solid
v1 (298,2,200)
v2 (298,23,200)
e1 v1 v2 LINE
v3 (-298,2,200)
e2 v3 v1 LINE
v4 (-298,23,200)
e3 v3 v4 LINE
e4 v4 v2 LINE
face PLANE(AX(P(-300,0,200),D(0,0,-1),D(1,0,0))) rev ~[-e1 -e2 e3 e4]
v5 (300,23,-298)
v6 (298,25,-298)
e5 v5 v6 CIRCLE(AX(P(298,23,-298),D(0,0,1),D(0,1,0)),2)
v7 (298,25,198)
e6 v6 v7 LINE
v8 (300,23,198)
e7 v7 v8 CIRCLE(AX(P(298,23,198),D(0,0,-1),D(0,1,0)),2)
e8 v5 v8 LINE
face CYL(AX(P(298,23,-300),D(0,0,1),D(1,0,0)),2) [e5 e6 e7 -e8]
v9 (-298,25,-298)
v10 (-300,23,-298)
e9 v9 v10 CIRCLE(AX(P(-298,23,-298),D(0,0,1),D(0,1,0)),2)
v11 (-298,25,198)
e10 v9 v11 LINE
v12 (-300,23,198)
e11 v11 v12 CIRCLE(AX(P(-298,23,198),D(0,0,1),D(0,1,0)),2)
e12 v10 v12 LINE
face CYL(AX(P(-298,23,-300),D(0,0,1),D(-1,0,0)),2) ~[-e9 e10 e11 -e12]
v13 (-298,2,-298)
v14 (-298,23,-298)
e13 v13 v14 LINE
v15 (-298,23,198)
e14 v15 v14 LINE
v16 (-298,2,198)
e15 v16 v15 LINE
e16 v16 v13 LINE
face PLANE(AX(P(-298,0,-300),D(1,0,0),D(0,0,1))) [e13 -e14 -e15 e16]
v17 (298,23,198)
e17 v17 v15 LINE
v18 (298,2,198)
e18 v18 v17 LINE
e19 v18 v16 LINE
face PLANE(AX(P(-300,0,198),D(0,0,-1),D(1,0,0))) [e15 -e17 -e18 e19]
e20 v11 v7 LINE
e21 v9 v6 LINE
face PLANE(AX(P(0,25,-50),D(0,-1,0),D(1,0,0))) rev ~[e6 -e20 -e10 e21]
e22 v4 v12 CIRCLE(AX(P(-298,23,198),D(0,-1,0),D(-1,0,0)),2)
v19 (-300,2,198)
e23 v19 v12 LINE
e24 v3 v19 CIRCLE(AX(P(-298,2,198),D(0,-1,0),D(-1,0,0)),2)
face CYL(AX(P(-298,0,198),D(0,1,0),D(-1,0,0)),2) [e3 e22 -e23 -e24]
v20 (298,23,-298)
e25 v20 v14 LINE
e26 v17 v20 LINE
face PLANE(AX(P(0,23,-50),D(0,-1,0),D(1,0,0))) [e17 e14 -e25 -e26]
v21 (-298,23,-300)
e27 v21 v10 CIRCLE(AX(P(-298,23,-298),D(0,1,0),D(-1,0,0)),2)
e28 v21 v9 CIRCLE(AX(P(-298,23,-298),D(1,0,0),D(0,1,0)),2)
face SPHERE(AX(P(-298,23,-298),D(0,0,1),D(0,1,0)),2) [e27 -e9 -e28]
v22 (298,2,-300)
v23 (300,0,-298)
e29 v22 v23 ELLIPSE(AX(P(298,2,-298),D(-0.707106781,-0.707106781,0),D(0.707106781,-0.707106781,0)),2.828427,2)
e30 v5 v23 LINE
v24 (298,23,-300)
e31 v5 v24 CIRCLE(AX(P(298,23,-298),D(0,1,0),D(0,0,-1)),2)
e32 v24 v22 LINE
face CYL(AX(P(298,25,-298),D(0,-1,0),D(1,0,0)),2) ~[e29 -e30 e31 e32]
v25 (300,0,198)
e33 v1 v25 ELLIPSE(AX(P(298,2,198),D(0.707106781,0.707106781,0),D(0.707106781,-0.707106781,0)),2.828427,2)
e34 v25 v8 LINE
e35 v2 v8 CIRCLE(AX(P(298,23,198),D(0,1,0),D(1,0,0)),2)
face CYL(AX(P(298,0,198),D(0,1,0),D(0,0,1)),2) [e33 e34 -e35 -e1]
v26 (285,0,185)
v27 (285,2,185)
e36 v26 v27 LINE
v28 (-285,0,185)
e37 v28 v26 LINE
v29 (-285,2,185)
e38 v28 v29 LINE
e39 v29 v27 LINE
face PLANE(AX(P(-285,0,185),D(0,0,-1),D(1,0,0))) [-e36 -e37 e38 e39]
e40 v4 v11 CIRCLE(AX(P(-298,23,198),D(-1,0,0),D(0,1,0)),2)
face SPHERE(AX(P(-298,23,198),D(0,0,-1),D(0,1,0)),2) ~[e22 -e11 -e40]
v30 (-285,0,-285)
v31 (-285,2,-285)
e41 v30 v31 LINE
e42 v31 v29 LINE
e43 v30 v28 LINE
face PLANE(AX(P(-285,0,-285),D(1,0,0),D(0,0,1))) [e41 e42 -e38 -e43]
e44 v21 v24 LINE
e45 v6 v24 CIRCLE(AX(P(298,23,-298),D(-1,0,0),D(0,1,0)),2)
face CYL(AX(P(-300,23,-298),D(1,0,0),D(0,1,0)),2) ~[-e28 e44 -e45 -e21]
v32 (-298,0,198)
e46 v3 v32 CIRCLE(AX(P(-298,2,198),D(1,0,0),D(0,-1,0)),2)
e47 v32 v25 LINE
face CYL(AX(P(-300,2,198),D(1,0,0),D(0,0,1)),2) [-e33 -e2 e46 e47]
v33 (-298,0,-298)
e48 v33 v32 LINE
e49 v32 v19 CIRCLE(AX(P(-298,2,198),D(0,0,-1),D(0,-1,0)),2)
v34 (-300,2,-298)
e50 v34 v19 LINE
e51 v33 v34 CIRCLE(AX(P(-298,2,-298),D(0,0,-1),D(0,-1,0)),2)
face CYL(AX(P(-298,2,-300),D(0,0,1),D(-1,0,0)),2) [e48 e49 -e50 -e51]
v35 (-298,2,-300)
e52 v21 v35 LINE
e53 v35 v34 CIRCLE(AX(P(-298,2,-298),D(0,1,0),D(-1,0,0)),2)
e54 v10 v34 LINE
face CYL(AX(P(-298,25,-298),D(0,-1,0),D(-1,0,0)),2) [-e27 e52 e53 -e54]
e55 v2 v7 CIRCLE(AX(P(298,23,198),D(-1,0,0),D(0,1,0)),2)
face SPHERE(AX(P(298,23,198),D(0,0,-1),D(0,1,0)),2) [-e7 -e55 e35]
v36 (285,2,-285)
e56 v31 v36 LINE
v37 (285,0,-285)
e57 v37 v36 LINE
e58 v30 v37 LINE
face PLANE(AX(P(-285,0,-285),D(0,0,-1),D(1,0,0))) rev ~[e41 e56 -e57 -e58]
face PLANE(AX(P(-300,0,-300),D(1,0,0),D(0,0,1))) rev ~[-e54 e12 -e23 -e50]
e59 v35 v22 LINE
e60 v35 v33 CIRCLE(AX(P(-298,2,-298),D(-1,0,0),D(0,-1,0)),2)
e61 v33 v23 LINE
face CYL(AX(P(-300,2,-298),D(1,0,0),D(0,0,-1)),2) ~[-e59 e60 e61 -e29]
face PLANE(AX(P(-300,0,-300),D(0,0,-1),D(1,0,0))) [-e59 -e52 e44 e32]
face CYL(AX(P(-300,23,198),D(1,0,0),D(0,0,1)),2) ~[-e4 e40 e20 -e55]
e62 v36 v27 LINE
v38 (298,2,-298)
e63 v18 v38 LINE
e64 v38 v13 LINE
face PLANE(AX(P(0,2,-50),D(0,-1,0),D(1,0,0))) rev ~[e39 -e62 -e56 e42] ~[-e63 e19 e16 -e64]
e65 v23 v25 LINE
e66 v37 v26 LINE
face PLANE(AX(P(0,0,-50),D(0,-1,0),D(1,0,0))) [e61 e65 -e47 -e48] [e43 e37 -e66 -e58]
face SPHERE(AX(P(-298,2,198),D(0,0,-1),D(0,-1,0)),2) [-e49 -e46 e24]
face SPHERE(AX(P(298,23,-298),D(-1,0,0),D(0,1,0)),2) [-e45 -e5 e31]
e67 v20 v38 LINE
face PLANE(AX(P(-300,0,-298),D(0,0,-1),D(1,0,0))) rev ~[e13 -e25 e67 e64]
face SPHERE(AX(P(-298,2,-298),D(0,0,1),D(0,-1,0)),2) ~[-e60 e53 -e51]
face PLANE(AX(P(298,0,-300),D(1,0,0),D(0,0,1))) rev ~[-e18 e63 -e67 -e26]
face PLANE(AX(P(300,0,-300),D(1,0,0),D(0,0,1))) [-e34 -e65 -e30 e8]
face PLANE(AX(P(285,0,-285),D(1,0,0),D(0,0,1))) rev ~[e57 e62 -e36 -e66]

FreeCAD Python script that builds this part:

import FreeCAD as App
import Part
import Sketcher


def edges_at(feature, points):
    """Names of the edges that pass closest to the given points."""
    edges = feature.Shape.Edges
    near = lambda p: min(range(len(edges)), key=lambda i: edges[i].distToShape(Part.Vertex(*p))[0])
    return sorted({f"Edge{near(p) + 1}" for p in points})


def faces_at(feature, points):
    """Names of the faces that lie closest to the given points."""
    faces = feature.Shape.Faces
    near = lambda p: min(range(len(faces)), key=lambda i: faces[i].distToShape(Part.Vertex(*p))[0])
    return sorted({f"Face{near(p) + 1}" for p in points})

doc = App.newDocument("Part")
body = doc.addObject("PartDesign::Body", "Body")

# Sketch on XZ plane
sketch1 = doc.addObject("Sketcher::SketchObject", "Sketch")
body.addObject(sketch1)
sketch1.AttachmentSupport = (doc.XZ_Plane, [""])
sketch1.MapMode = "FlatFace"
sketch1.addGeometry([
    Part.LineSegment(App.Vector(-300, 200, 0), App.Vector(-300, -300, 0)),
    Part.LineSegment(App.Vector(-300, -300, 0), App.Vector(300, -300, 0)),
    Part.LineSegment(App.Vector(300, -300, 0), App.Vector(300, 200, 0)),
    Part.LineSegment(App.Vector(300, 200, 0), App.Vector(-300, 200, 0)),
], False)
sketch1.addConstraint([
    Sketcher.Constraint("Coincident", 0, 2, 1, 1),
    Sketcher.Constraint("Coincident", 1, 2, 2, 1),
    Sketcher.Constraint("Coincident", 2, 2, 3, 1),
    Sketcher.Constraint("Coincident", 3, 2, 0, 1),
    Sketcher.Constraint("Vertical", 0),
    Sketcher.Constraint("Horizontal", 1),
    Sketcher.Constraint("Vertical", 2),
    Sketcher.Constraint("Horizontal", 3),
    Sketcher.Constraint("DistanceX", 1, 1, 1, 2, 600.0),
    Sketcher.Constraint("DistanceY", 0, 2, 0, 1, 500.0),
    Sketcher.Constraint("DistanceX", 0, 2, -1, 1, 300.0),
    Sketcher.Constraint("DistanceY", 0, 2, -1, 1, 300.0),
])
pad1 = doc.addObject("PartDesign::Pad", "Pad")
body.addObject(pad1)
pad1.Profile = sketch1
pad1.Length = 25
pad1.Reversed = True
doc.recompute()

thickness = doc.addObject("PartDesign::Thickness", "Thickness")
body.addObject(thickness)
thickness.Base = (pad1, faces_at(pad1, [(0, 0, -50)]))
thickness.Value = 2
thickness.Reversed = True
thickness.Join = "Arc"

# Sketch on XZ plane
sketch2 = doc.addObject("Sketcher::SketchObject", "Sketch001")
body.addObject(sketch2)
sketch2.AttachmentSupport = (doc.XZ_Plane, [""])
sketch2.MapMode = "FlatFace"
sketch2.addGeometry([
    Part.LineSegment(App.Vector(-300, 200, 0), App.Vector(-300, -300, 0)),  # 0
    Part.LineSegment(App.Vector(-300, -300, 0), App.Vector(300, -300, 0)),  # 1
    Part.LineSegment(App.Vector(300, -300, 0), App.Vector(300, 200, 0)),  # 2
    Part.LineSegment(App.Vector(300, 200, 0), App.Vector(-300, 200, 0)),  # 3
    Part.LineSegment(App.Vector(285, -285, 0), App.Vector(-285, -285, 0)),  # 4
    Part.LineSegment(App.Vector(-285, -285, 0), App.Vector(-285, 185, 0)),  # 5
    Part.LineSegment(App.Vector(-285, 185, 0), App.Vector(285, 185, 0)),  # 6
    Part.LineSegment(App.Vector(285, 185, 0), App.Vector(285, -285, 0)),  # 7
], False)
sketch2.addConstraint([
    Sketcher.Constraint("Coincident", 0, 2, 1, 1),
    Sketcher.Constraint("Coincident", 1, 2, 2, 1),
    Sketcher.Constraint("Coincident", 2, 2, 3, 1),
    Sketcher.Constraint("Coincident", 3, 2, 0, 1),
    Sketcher.Constraint("Coincident", 4, 2, 5, 1),
    Sketcher.Constraint("Coincident", 5, 2, 6, 1),
    Sketcher.Constraint("Coincident", 6, 2, 7, 1),
    Sketcher.Constraint("Coincident", 7, 2, 4, 1),
    Sketcher.Constraint("Vertical", 0),
    Sketcher.Constraint("Horizontal", 1),
    Sketcher.Constraint("Vertical", 2),
    Sketcher.Constraint("Horizontal", 3),
    Sketcher.Constraint("Horizontal", 4),
    Sketcher.Constraint("Vertical", 5),
    Sketcher.Constraint("Horizontal", 6),
    Sketcher.Constraint("Vertical", 7),
    Sketcher.Constraint("DistanceX", 1, 1, 1, 2, 600.0),
    Sketcher.Constraint("DistanceX", 4, 2, 4, 1, 570.0),
    Sketcher.Constraint("DistanceY", 0, 2, 0, 1, 500.0),
    Sketcher.Constraint("DistanceY", 5, 1, 5, 2, 470.0),
    Sketcher.Constraint("DistanceX", 0, 2, -1, 1, 300.0),
    Sketcher.Constraint("DistanceY", 0, 2, -1, 1, 300.0),
    Sketcher.Constraint("DistanceX", 4, 2, -1, 1, 285.0),
    Sketcher.Constraint("DistanceY", 4, 2, -1, 1, 285.0),
])
pad2 = doc.addObject("PartDesign::Pad", "Pad001")
body.addObject(pad2)
pad2.Profile = sketch2
pad2.Length = 2
pad2.Reversed = True
doc.recompute()

fillet = doc.addObject("PartDesign::Fillet", "Fillet")
body.addObject(fillet)
fillet.Base = (pad2, edges_at(pad2, [
    (-300, 25, -50),
    (0, 25, -300),
    (300, 25, -50),
    (0, 25, 200),
    (-300, 0, -50),
    (0, 0, 200),
    (0, 0, -300),
    (300, 12.5, -300),
    (300, 12.5, 200),
    (-300, 12.5, 200),
    (-300, 12.5, -300),
]))
fillet.Radius = 2

doc.recompute()
